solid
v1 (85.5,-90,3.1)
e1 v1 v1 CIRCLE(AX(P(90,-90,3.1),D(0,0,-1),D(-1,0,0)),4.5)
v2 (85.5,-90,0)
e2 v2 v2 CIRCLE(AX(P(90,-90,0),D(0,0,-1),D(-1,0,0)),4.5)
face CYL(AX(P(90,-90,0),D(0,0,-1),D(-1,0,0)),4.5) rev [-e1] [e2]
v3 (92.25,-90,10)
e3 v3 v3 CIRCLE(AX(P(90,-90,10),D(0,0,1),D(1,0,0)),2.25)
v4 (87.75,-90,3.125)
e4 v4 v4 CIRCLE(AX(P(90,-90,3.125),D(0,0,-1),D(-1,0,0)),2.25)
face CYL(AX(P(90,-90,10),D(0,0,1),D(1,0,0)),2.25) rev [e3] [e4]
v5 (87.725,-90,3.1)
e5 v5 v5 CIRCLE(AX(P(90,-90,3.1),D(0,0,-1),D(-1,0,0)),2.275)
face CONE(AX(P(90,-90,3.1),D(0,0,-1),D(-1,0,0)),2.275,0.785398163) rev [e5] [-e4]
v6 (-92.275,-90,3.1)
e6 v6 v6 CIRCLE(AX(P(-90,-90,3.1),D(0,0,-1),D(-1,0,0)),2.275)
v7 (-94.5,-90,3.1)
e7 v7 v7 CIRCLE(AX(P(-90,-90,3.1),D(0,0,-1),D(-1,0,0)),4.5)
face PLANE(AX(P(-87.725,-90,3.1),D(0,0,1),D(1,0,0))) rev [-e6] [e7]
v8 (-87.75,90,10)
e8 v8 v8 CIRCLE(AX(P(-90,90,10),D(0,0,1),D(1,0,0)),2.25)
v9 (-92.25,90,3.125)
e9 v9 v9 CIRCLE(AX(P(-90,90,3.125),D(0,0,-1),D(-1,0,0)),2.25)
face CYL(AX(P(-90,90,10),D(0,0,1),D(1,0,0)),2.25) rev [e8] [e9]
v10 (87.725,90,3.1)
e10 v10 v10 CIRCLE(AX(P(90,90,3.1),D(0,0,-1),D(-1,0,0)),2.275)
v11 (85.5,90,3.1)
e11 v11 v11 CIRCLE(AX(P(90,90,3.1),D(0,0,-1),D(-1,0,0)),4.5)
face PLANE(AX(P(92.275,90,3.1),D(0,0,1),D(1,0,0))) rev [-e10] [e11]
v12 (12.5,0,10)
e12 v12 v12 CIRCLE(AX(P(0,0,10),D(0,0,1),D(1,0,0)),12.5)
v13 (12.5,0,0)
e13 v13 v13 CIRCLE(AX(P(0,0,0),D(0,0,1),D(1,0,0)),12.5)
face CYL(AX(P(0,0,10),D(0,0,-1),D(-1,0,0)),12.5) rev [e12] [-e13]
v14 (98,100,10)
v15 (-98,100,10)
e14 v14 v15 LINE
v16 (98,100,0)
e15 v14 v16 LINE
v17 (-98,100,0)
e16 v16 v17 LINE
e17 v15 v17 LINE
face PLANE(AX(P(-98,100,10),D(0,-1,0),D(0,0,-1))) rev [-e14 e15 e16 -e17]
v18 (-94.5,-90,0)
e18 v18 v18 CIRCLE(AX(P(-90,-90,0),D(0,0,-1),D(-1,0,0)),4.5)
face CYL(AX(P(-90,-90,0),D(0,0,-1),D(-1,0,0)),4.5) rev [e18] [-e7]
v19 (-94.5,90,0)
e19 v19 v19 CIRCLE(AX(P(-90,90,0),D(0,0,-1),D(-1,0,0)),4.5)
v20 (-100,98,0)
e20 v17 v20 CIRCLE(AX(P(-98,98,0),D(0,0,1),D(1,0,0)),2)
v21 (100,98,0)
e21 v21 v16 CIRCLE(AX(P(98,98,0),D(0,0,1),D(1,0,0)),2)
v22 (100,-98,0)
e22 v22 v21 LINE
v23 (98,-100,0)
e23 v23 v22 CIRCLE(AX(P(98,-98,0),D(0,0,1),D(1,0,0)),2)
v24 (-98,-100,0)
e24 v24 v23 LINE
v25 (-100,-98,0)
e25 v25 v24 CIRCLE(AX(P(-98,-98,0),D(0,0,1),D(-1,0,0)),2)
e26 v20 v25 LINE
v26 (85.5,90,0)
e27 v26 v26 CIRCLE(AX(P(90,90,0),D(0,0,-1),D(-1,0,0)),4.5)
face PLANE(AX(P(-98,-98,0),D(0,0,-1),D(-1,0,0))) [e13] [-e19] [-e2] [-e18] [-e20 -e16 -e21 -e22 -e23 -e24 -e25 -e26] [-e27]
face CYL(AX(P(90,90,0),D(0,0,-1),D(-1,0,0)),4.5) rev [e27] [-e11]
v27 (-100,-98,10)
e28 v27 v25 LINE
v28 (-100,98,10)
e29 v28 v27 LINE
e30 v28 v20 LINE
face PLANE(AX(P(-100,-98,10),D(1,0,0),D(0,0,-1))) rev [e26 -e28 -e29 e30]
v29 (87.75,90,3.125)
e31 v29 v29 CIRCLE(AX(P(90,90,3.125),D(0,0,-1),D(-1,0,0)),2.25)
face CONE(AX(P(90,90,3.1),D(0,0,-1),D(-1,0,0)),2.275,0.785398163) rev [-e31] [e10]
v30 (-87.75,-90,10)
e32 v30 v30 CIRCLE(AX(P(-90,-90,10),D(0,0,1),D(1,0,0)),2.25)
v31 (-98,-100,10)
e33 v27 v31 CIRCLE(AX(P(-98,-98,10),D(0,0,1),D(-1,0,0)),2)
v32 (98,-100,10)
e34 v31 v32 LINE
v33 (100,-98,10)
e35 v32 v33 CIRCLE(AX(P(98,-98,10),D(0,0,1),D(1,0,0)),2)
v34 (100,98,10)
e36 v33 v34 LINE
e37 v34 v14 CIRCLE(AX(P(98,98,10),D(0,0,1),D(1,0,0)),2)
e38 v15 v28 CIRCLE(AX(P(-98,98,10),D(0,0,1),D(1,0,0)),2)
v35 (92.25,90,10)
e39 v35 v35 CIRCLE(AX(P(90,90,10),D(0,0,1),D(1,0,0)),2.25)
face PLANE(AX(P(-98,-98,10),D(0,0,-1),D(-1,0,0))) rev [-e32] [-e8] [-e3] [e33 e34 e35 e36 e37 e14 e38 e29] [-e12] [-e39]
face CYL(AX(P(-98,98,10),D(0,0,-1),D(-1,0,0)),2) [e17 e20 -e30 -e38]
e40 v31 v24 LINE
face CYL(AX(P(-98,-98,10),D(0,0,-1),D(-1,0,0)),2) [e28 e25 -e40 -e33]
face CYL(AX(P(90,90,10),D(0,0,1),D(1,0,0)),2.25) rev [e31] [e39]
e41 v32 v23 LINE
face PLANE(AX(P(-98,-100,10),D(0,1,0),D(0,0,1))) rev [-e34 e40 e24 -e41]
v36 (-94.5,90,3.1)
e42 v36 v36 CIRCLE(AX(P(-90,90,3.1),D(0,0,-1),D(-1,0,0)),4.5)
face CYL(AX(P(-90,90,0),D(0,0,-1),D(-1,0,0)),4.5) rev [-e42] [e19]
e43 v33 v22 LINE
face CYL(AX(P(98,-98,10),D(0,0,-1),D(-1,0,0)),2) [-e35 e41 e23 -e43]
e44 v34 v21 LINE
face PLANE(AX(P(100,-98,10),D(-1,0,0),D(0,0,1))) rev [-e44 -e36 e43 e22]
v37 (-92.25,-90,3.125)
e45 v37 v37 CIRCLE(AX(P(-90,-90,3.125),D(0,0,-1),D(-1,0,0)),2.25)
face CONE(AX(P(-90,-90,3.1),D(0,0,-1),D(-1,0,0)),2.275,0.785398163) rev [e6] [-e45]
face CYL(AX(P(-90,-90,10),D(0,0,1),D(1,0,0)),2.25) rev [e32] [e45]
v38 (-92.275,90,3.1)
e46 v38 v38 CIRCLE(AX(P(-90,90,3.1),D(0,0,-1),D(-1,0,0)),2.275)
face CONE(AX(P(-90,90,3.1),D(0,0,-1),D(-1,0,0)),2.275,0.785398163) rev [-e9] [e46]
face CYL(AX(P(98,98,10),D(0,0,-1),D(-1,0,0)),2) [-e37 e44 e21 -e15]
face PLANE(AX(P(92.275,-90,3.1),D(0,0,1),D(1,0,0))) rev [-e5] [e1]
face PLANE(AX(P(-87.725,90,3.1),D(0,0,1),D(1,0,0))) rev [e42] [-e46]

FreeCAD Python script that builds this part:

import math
import FreeCAD as App
import Part
import Sketcher

V = App.Vector
Q = App.Units.Quantity

doc = App.newDocument("Part")
body = doc.addObject("PartDesign::Body", "Body")

sketch1 = doc.addObject("Sketcher::SketchObject", "Sketch")
body.addObject(sketch1)
sketch1.AttachmentSupport = (doc.XY_Plane, [""])
sketch1.MapMode = "FlatFace"
sketch1.addGeometry([
    Part.LineSegment(V(-98, -100, 0), V(98, -100, 0)),
    Part.ArcOfCircle(Part.Circle(V(98, -98, 0), V(0, 0, 1), 2), math.radians(-90), math.radians(0)),
    Part.LineSegment(V(100, -98, 0), V(100, 98, 0)),
    Part.ArcOfCircle(Part.Circle(V(98, 98, 0), V(0, 0, 1), 2), math.radians(0), math.radians(90)),
    Part.LineSegment(V(98, 100, 0), V(-98, 100, 0)),
    Part.ArcOfCircle(Part.Circle(V(-98, 98, 0), V(0, 0, 1), 2), math.radians(90), math.radians(180)),
    Part.LineSegment(V(-100, 98, 0), V(-100, -98, 0)),
    Part.ArcOfCircle(Part.Circle(V(-98, -98, 0), V(0, 0, 1), 2), math.radians(-180), math.radians(-90)),
    Part.Circle(V(0, 0, 0), V(0, 0, 1), 12.5),
], False)
sketch1.addConstraint([
    Sketcher.Constraint("Tangent", 0, 2, 1, 1),
    Sketcher.Constraint("Tangent", 1, 2, 2, 1),
    Sketcher.Constraint("Tangent", 2, 2, 3, 1),
    Sketcher.Constraint("Tangent", 3, 2, 4, 1),
    Sketcher.Constraint("Tangent", 4, 2, 5, 1),
    Sketcher.Constraint("Tangent", 5, 2, 6, 1),
    Sketcher.Constraint("Tangent", 6, 2, 7, 1),
    Sketcher.Constraint("Tangent", 7, 2, 0, 1),
    Sketcher.Constraint("Horizontal", 0),
    Sketcher.Constraint("Vertical", 2),
    Sketcher.Constraint("Horizontal", 4),
    Sketcher.Constraint("Vertical", 6),
    Sketcher.Constraint("Coincident", 8, 3, -1, 1),
    Sketcher.Constraint("Equal", 1, 3),
    Sketcher.Constraint("Equal", 3, 5),
    Sketcher.Constraint("Equal", 5, 7),
    Sketcher.Constraint("Symmetric", 1, 3, 5, 3, -1, 1),
    Sketcher.Constraint("Equal", 4, 2),
    Sketcher.Constraint("Diameter", 8, Q("25 mm")),
    Sketcher.Constraint("Radius", 1, Q("2 mm")),
    Sketcher.Constraint("DistanceX", 0, 1, 0, 2, Q("196 mm")),
])
pad1 = doc.addObject("PartDesign::Pad", "Pad")
body.addObject(pad1)
pad1.Profile = sketch1
pad1.Length = 10

sketch2 = doc.addObject("Sketcher::SketchObject", "Sketch001")
body.addObject(sketch2)
sketch2.AttachmentSupport = (doc.XY_Plane, [""])
sketch2.MapMode = "FlatFace"
sketch2.AttachmentOffset = App.Placement(V(0, 0, 10), App.Rotation())
sketch2.addGeometry([
    Part.Circle(V(-90, 90, 0), V(0, 0, 1), 2.2),
    Part.Circle(V(-90, -90, 0), V(0, 0, 1), 2.2),
    Part.Circle(V(90, -90, 0), V(0, 0, 1), 2.2),
    Part.Circle(V(90, 90, 0), V(0, 0, 1), 2.2),
], False)
sketch2.addConstraint([
    Sketcher.Constraint("Equal", 0, 1),
    Sketcher.Constraint("Equal", 1, 2),
    Sketcher.Constraint("Equal", 2, 3),
    Sketcher.Constraint("Symmetric", 0, 3, 2, 3, -1, 1),
    Sketcher.Constraint("Symmetric", 1, 3, 3, 3, -1, 1),
    Sketcher.Constraint("Symmetric", 1, 3, 2, 3, -2),
    Sketcher.Constraint("Diameter", 0, Q("4.5 mm")),
    Sketcher.Constraint("DistanceX", 0, 3, -1, 1, Q("90 mm")),
    Sketcher.Constraint("DistanceY", -1, 1, 0, 3, Q("90 mm")),
])
doc.recompute()
hole = doc.addObject("PartDesign::Hole", "Hole")
body.addObject(hole)
hole.Profile = sketch2
hole.ThreadType = "None"
hole.Diameter = 4.5
hole.DepthType = "ThroughAll"

sketch3 = doc.addObject("Sketcher::SketchObject", "Sketch002")
body.addObject(sketch3)
sketch3.AttachmentSupport = (doc.YZ_Plane, [""])
sketch3.MapMode = "FlatFace"
sketch3.AttachmentOffset = App.Placement(V(0, 0, 90), App.Rotation())
sketch3.addGeometry([
    Part.LineSegment(V(90, 10, 0), V(90, 0, 0)),
    Part.LineSegment(V(90, 0, 0), V(94.5, 0, 0)),
    Part.LineSegment(V(94.5, 0, 0), V(94.5, 3.1, 0)),
    Part.LineSegment(V(94.5, 3.1, 0), V(92.275, 3.1, 0)),
    Part.LineSegment(V(92.275, 3.1, 0), V(92.25, 3.125, 0)),
    Part.LineSegment(V(92.25, 3.125, 0), V(92.25, 10, 0)),
    Part.LineSegment(V(92.25, 10, 0), V(90, 10, 0)),
], False)
sketch3.addGeometry(Part.LineSegment(V(90, 0, 0), V(90, 10, 0)), True)
sketch3.addConstraint([
    Sketcher.Constraint("Coincident", 0, 2, 1, 1),
    Sketcher.Constraint("Coincident", 1, 2, 2, 1),
    Sketcher.Constraint("Coincident", 2, 2, 3, 1),
    Sketcher.Constraint("Coincident", 3, 2, 4, 1),
    Sketcher.Constraint("Coincident", 4, 2, 5, 1),
    Sketcher.Constraint("Coincident", 5, 2, 6, 1),
    Sketcher.Constraint("Coincident", 6, 2, 0, 1),
    Sketcher.Constraint("Vertical", 0),
    Sketcher.Constraint("Horizontal", 1),
    Sketcher.Constraint("Vertical", 2),
    Sketcher.Constraint("Horizontal", 3),
    Sketcher.Constraint("Vertical", 5),
    Sketcher.Constraint("Horizontal", 6),
    Sketcher.Constraint("Vertical", 7),
    Sketcher.Constraint("Coincident", 7, 1, 0, 2),
    Sketcher.Constraint("PointOnObject", 0, 2, -1),
    Sketcher.Constraint("Horizontal", 5, 2, 7, 2),
    Sketcher.Constraint("DistanceY", 0, 2, 0, 1, Q("10 mm")),
    Sketcher.Constraint("Angle", 4, Q("135 deg")),
    Sketcher.Constraint("DistanceX", 1, 1, 1, 2, Q("4.5 mm")),
    Sketcher.Constraint("DistanceY", 2, 1, 2, 2, Q("3.1 mm")),
    Sketcher.Constraint("DistanceX", -1, 1, 0, 2, Q("90 mm")),
    Sketcher.Constraint("DistanceX", 6, 2, 6, 1, Q("2.25 mm")),
    Sketcher.Constraint("DistanceX", 3, 2, 3, 1, Q("2.225 mm")),
])
groove = doc.addObject("PartDesign::Groove", "Groove")
body.addObject(groove)
groove.Profile = sketch3
groove.ReferenceAxis = (sketch3, ["Axis0"])
groove.Angle = 360
doc.recompute()

linearpattern = doc.addObject("PartDesign::LinearPattern", "LinearPattern")
body.addObject(linearpattern)
linearpattern.Originals = [groove]
linearpattern.Direction = (doc.X_Axis, [""])
linearpattern.Mode = "offset"
linearpattern.Offset = 180
linearpattern.Occurrences = 2
linearpattern.Reversed = True
body.Tip = linearpattern
doc.recompute()

datumline = doc.addObject("PartDesign::Line", "DatumLine")
body.addObject(datumline)
datumline.Placement = App.Placement(V(0, 0, 0), App.Rotation(V(0, 0, 1), V(-0.707106781, -0.707106781, 0)))
linearpattern2 = doc.addObject("PartDesign::LinearPattern", "LinearPattern001")
body.addObject(linearpattern2)
linearpattern2.Originals = [groove]
linearpattern2.Direction = (datumline, [""])
linearpattern2.Mode = "offset"
linearpattern2.Offset = 254.558441
linearpattern2.Occurrences = 2
body.Tip = linearpattern2
doc.recompute()

linearpattern3 = doc.addObject("PartDesign::LinearPattern", "LinearPattern002")
body.addObject(linearpattern3)
linearpattern3.Originals = [groove]
linearpattern3.Direction = (doc.Y_Axis, [""])
linearpattern3.Mode = "offset"
linearpattern3.Offset = 180
linearpattern3.Occurrences = 2
linearpattern3.Reversed = True
body.Tip = linearpattern3

doc.recompute()
